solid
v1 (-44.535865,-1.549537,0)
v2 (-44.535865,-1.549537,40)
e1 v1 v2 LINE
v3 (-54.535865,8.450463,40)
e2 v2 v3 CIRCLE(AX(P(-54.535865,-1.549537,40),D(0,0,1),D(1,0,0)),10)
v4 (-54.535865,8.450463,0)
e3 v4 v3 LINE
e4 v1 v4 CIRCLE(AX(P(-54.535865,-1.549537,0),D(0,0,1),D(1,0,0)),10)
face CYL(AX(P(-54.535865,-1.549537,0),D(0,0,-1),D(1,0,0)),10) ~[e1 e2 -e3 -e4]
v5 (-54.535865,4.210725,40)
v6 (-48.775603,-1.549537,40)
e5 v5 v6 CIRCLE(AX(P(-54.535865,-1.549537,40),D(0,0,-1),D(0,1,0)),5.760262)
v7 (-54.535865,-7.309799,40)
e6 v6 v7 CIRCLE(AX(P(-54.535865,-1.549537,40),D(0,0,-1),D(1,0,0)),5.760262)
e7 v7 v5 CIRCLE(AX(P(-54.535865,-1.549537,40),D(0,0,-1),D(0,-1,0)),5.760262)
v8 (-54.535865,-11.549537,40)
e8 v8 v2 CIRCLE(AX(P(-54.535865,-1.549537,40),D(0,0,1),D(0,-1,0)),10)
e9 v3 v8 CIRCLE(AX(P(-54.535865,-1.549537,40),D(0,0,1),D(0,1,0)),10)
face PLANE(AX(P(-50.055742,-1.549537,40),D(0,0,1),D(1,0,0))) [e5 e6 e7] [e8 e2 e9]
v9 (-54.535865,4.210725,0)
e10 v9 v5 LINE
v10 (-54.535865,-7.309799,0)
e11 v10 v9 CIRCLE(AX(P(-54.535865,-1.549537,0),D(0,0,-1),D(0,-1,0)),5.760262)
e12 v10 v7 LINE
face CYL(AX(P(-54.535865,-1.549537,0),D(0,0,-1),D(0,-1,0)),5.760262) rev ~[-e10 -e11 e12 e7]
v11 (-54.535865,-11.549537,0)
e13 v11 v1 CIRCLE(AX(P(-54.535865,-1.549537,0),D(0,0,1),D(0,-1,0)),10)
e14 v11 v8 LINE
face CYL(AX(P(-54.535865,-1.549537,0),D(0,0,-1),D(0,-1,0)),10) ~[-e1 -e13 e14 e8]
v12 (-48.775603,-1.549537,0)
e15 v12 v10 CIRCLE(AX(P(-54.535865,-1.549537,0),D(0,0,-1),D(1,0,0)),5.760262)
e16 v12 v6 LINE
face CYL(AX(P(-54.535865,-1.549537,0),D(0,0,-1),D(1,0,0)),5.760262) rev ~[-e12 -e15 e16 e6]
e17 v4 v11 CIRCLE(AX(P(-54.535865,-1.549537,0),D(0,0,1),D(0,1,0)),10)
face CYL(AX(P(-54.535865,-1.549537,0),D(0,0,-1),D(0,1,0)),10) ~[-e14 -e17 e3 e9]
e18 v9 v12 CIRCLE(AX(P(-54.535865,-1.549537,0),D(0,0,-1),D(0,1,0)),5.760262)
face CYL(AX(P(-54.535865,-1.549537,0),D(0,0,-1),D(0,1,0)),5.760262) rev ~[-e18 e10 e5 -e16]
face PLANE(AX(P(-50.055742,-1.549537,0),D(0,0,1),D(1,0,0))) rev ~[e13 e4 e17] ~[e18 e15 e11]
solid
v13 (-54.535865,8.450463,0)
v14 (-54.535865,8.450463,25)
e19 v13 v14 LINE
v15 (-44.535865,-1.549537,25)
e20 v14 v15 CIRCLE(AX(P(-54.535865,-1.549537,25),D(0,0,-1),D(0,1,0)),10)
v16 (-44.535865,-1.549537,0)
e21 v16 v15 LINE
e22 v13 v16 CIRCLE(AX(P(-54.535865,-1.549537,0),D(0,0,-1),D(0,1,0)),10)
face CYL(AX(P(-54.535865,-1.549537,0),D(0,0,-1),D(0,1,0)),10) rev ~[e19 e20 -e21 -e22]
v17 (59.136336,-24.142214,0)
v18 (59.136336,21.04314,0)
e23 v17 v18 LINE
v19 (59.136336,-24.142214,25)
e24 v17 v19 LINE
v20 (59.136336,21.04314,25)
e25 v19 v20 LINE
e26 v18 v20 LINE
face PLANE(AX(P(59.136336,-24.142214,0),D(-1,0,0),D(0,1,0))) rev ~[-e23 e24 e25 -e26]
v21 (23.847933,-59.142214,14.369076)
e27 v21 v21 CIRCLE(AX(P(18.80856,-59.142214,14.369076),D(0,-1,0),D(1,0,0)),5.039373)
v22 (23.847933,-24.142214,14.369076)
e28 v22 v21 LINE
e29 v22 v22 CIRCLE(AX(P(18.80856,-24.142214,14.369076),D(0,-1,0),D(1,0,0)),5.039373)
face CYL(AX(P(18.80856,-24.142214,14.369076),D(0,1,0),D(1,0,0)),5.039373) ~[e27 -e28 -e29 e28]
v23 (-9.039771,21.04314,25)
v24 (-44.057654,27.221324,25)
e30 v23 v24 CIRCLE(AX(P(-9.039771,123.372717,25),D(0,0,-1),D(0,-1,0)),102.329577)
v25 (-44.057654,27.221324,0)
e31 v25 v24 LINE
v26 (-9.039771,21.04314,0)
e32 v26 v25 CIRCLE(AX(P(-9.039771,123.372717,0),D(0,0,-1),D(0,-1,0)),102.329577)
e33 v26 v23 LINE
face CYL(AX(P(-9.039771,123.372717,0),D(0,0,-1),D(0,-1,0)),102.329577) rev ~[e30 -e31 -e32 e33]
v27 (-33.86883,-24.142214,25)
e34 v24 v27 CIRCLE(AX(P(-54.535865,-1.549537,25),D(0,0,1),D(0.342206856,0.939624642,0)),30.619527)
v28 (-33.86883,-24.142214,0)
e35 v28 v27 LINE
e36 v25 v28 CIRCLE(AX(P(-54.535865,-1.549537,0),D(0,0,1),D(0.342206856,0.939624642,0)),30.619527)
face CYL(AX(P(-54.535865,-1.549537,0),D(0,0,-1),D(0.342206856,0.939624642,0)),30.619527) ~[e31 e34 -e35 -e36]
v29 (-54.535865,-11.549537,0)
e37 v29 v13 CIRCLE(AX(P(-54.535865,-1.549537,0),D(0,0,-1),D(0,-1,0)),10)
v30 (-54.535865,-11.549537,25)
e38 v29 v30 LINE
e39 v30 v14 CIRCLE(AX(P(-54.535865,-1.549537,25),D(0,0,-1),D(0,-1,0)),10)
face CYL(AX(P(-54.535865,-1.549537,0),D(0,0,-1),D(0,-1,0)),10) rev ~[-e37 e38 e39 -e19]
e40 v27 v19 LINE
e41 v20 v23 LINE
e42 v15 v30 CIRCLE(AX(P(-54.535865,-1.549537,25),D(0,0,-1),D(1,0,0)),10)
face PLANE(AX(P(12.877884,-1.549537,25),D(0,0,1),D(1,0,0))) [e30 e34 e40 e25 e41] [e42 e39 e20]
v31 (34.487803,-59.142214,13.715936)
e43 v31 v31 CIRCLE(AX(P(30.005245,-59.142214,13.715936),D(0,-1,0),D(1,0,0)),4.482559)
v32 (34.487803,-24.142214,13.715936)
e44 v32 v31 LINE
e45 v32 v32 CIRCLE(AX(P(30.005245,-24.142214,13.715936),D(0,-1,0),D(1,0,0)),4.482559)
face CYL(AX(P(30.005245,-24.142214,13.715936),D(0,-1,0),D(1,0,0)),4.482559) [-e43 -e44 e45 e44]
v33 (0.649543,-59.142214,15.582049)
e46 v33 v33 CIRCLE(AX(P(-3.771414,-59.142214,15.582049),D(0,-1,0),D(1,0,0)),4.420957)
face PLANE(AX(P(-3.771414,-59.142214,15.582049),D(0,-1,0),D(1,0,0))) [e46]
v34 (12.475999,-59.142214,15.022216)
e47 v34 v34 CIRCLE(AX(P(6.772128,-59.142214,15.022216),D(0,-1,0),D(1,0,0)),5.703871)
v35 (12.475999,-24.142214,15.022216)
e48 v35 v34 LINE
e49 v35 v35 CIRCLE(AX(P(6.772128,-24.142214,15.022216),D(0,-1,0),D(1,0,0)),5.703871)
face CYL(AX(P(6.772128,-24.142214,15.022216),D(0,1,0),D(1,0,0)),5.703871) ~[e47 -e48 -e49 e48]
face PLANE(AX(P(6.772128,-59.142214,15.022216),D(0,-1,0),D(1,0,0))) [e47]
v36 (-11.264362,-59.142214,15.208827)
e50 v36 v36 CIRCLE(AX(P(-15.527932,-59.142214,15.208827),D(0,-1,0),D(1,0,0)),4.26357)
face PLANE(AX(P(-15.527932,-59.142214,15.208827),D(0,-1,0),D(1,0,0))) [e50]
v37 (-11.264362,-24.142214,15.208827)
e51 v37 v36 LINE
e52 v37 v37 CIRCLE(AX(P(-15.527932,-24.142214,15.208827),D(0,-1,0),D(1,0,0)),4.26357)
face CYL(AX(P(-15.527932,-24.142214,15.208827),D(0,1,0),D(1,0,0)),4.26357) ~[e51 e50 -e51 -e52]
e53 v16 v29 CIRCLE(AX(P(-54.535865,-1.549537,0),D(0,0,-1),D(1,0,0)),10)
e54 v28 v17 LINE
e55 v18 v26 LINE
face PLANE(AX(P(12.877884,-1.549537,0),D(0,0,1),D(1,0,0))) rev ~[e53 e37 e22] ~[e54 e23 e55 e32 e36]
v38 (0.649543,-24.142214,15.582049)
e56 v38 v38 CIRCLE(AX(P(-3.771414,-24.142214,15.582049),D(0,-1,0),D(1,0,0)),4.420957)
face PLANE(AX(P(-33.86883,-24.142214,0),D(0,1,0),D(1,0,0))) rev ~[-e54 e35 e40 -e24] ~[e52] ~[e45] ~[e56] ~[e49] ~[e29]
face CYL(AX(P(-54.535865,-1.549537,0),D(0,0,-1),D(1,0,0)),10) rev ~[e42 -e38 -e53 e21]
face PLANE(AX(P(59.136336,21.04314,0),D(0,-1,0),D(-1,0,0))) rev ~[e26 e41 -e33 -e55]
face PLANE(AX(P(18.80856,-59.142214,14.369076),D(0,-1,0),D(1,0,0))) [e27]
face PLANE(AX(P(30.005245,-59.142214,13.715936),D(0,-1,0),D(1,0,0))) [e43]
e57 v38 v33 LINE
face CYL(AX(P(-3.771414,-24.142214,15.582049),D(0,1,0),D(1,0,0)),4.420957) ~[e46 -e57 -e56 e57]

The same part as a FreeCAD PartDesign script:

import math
import FreeCAD as App
import Part
import Sketcher

doc = App.newDocument("Part")
body = doc.addObject("PartDesign::Body", "Body")

sketch1 = doc.addObject("Sketcher::SketchObject", "Sketch")
body.addObject(sketch1)
sketch1.AttachmentSupport = (doc.XY_Plane, [""])
sketch1.MapMode = "FlatFace"
sketch1.addGeometry(Part.LineSegment(App.Vector(59, 21, 0), App.Vector(-9, 21, 0)), False)
sketch1.addGeometry(Part.ArcOfCircle(Part.Circle(App.Vector(-9, 123, 0), App.Vector(0, 0, 1), 102), math.radians(-110), math.radians(-90)), False)
sketch1.addGeometry(Part.ArcOfCircle(Part.Circle(App.Vector(-55, -2, 0), App.Vector(0, 0, 1), 31), math.radians(70), math.radians(312)), False)
sketch1.addGeometry(Part.LineSegment(App.Vector(-34, -24, 0), App.Vector(59, -24, 0)), False)
sketch1.addGeometry(Part.LineSegment(App.Vector(59, -24, 0), App.Vector(59, 21, 0)), False)
sketch1.addGeometry(Part.ArcOfCircle(Part.Circle(App.Vector(-55, -2, 0), App.Vector(0, 0, 1), 10), math.radians(0), math.radians(90)), False)
sketch1.addGeometry(Part.ArcOfCircle(Part.Circle(App.Vector(-55, -2, 0), App.Vector(0, 0, 1), 10), math.radians(-90), math.radians(0)), False)
sketch1.addGeometry(Part.ArcOfCircle(Part.Circle(App.Vector(-55, -2, 0), App.Vector(0, 0, 1), 10), math.radians(90), math.radians(270)), False)
sketch1.addConstraint(Sketcher.Constraint("Tangent", 0, 2, 1, 2))
sketch1.addConstraint(Sketcher.Constraint("Tangent", 1, 1, 2, 1))
sketch1.addConstraint(Sketcher.Constraint("Coincident", 2, 2, 3, 1))
sketch1.addConstraint(Sketcher.Constraint("Coincident", 3, 2, 4, 1))
sketch1.addConstraint(Sketcher.Constraint("Coincident", 4, 2, 0, 1))
sketch1.addConstraint(Sketcher.Constraint("Tangent", 5, 1, 6, 2))
sketch1.addConstraint(Sketcher.Constraint("Tangent", 6, 1, 7, 2))
sketch1.addConstraint(Sketcher.Constraint("Tangent", 7, 1, 5, 2))
sketch1.addConstraint(Sketcher.Constraint("Horizontal", 0))
sketch1.addConstraint(Sketcher.Constraint("Horizontal", 3))
sketch1.addConstraint(Sketcher.Constraint("Vertical", 4))
sketch1.addConstraint(Sketcher.Constraint("Coincident", 5, 3, 2, 3))
sketch1.addConstraint(Sketcher.Constraint("Horizontal", 7, 3, 5, 1))
sketch1.addConstraint(Sketcher.Constraint("Vertical", 7, 3, 6, 1))
sketch1.addConstraint(Sketcher.Constraint("Vertical", 6, 1, 7, 1))
sketch1.addConstraint(Sketcher.Constraint("Radius", 5, 10.0))
sketch1.addConstraint(Sketcher.Constraint("Radius", 1, 102.329577))
sketch1.addConstraint(Sketcher.Constraint("Radius", 2, 30.619527))
sketch1.addConstraint(Sketcher.Constraint("DistanceX", 2, 3, 3, 2, 113.672202))
sketch1.addConstraint(Sketcher.Constraint("DistanceX", 0, 2, 0, 1, 68.176107))
sketch1.addConstraint(Sketcher.Constraint("DistanceX", 3, 1, 3, 2, 93.005166))
sketch1.addConstraint(Sketcher.Constraint("DistanceX", 1, 3, -1, 1, 9.039771))
sketch1.addConstraint(Sketcher.Constraint("DistanceY", -1, 1, 0, 2, 21.04314))
pad1 = doc.addObject("PartDesign::Pad", "Pad")
body.addObject(pad1)
pad1.Profile = sketch1
pad1.Length = 25

sketch2 = doc.addObject("Sketcher::SketchObject", "Sketch001")
body.addObject(sketch2)
sketch2.AttachmentSupport = (doc.XZ_Plane, [""])
sketch2.MapMode = "FlatFace"
sketch2.AttachmentOffset = App.Placement(App.Vector(0, 0, 24.142214), App.Rotation())
sketch2.addGeometry(Part.Circle(App.Vector(-15.5, 15.2, 0), App.Vector(0, 0, 1), 4.3), False)
sketch2.addGeometry(Part.Circle(App.Vector(-3.8, 15.6, 0), App.Vector(0, 0, 1), 4.4), False)
sketch2.addGeometry(Part.Circle(App.Vector(6.8, 15, 0), App.Vector(0, 0, 1), 5.7), False)
sketch2.addGeometry(Part.Circle(App.Vector(18.8, 14.4, 0), App.Vector(0, 0, 1), 5), False)
sketch2.addGeometry(Part.Circle(App.Vector(30, 13.7, 0), App.Vector(0, 0, 1), 4.5), False)
sketch2.addConstraint(Sketcher.Constraint("Diameter", 0, 8.527141))
sketch2.addConstraint(Sketcher.Constraint("Diameter", 1, 8.841914))
sketch2.addConstraint(Sketcher.Constraint("Diameter", 2, 11.407742))
sketch2.addConstraint(Sketcher.Constraint("Diameter", 3, 10.078746))
sketch2.addConstraint(Sketcher.Constraint("Diameter", 4, 8.965117))
sketch2.addConstraint(Sketcher.Constraint("DistanceX", 0, 3, -1, 1, 15.527932))
sketch2.addConstraint(Sketcher.Constraint("DistanceY", -1, 1, 1, 3, 15.582049))
sketch2.addConstraint(Sketcher.Constraint("DistanceX", -1, 1, 3, 3, 18.80856))
sketch2.addConstraint(Sketcher.Constraint("DistanceY", 0, 3, 1, 3, 0.373222))
sketch2.addConstraint(Sketcher.Constraint("DistanceX", 0, 3, 2, 3, 22.30006))
sketch2.addConstraint(Sketcher.Constraint("DistanceY", 2, 3, 0, 3, 0.186611))
sketch2.addConstraint(Sketcher.Constraint("DistanceY", 3, 3, 2, 3, 0.65314))
sketch2.addConstraint(Sketcher.Constraint("DistanceY", 4, 3, 3, 3, 0.65314))
sketch2.addConstraint(Sketcher.Constraint("DistanceX", 1, 3, 4, 3, 33.776659))
sketch2.addConstraint(Sketcher.Constraint("DistanceX", 1, 3, -1, 1, 3.771414))
pad2 = doc.addObject("PartDesign::Pad", "Pad001")
body.addObject(pad2)
pad2.Profile = sketch2
pad2.Length = 70
pad2.Midplane = True
body2 = doc.addObject("PartDesign::Body", "Body001")

sketch3 = doc.addObject("Sketcher::SketchObject", "Sketch002")
body2.addObject(sketch3)
sketch3.AttachmentSupport = (doc.getObject("XY_Plane001"), [""])
sketch3.MapMode = "FlatFace"
sketch3.addGeometry(Part.ArcOfCircle(Part.Circle(App.Vector(-55, -2, 0), App.Vector(0, 0, 1), 10), math.radians(0), math.radians(90)), False)
sketch3.addGeometry(Part.ArcOfCircle(Part.Circle(App.Vector(-55, -2, 0), App.Vector(0, 0, 1), 10), math.radians(90), math.radians(270)), False)
sketch3.addGeometry(Part.ArcOfCircle(Part.Circle(App.Vector(-55, -2, 0), App.Vector(0, 0, 1), 10), math.radians(-90), math.radians(0)), False)
sketch3.addGeometry(Part.ArcOfCircle(Part.Circle(App.Vector(-55, -2, 0), App.Vector(0, 0, 1), 6), math.radians(0), math.radians(90)), False)
sketch3.addGeometry(Part.ArcOfCircle(Part.Circle(App.Vector(-55, -2, 0), App.Vector(0, 0, 1), 6), math.radians(-90), math.radians(0)), False)
sketch3.addGeometry(Part.ArcOfCircle(Part.Circle(App.Vector(-55, -2, 0), App.Vector(0, 0, 1), 6), math.radians(90), math.radians(270)), False)
sketch3.addConstraint(Sketcher.Constraint("Tangent", 0, 2, 1, 1))
sketch3.addConstraint(Sketcher.Constraint("Tangent", 1, 2, 2, 1))
sketch3.addConstraint(Sketcher.Constraint("Tangent", 2, 2, 0, 1))
sketch3.addConstraint(Sketcher.Constraint("Tangent", 3, 1, 4, 2))
sketch3.addConstraint(Sketcher.Constraint("Tangent", 4, 1, 5, 2))
sketch3.addConstraint(Sketcher.Constraint("Tangent", 5, 1, 3, 2))
sketch3.addConstraint(Sketcher.Constraint("Coincident", 3, 3, 0, 3))
sketch3.addConstraint(Sketcher.Constraint("Horizontal", 5, 3, 2, 2))
sketch3.addConstraint(Sketcher.Constraint("Horizontal", 2, 2, 3, 1))
sketch3.addConstraint(Sketcher.Constraint("Vertical", 5, 3, 0, 2))
sketch3.addConstraint(Sketcher.Constraint("Vertical", 0, 2, 1, 2))
sketch3.addConstraint(Sketcher.Constraint("Vertical", 1, 2, 4, 1))
sketch3.addConstraint(Sketcher.Constraint("Vertical", 4, 1, 5, 1))
sketch3.addConstraint(Sketcher.Constraint("Radius", 0, 10.0))
sketch3.addConstraint(Sketcher.Constraint("Radius", 3, 5.760262))
sketch3.addConstraint(Sketcher.Constraint("DistanceY", 4, 1, -1, 1, 7.309799))
sketch3.addConstraint(Sketcher.Constraint("DistanceX", 0, 3, -1, 1, 54.535865))
pad3 = doc.addObject("PartDesign::Pad", "Pad002")
body2.addObject(pad3)
pad3.Profile = sketch3
pad3.Length = 40

doc.recompute()
